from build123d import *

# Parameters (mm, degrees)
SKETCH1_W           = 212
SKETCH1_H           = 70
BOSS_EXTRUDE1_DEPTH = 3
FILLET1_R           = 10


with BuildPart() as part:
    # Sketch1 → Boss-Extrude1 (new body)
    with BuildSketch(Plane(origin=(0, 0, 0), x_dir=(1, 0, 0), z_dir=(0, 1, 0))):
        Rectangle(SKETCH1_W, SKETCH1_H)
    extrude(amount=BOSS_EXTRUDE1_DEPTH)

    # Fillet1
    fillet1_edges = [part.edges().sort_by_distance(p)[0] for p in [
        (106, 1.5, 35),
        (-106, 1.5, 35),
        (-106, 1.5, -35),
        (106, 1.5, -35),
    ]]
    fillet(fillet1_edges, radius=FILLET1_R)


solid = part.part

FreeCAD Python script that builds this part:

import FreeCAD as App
import Part
import Sketcher

V = App.Vector


def edges_at(feature, points):
    """Names of the edges that pass closest to the given points."""
    edges = feature.Shape.Edges
    near = lambda p: min(range(len(edges)), key=lambda i: edges[i].distToShape(Part.Vertex(*p))[0])
    return sorted({f"Edge{near(p) + 1}" for p in points})

doc = App.newDocument("Part")
body = doc.addObject("PartDesign::Body", "Body")

sketch1 = doc.addObject("Sketcher::SketchObject", "Sketch")
body.addObject(sketch1)
sketch1.AttachmentSupport = (doc.XZ_Plane, [""])
sketch1.MapMode = "FlatFace"
sketch1.addGeometry([
    Part.LineSegment(V(-106, -35, 0), V(-106, 35, 0)),
    Part.LineSegment(V(-106, 35, 0), V(106, 35, 0)),
    Part.LineSegment(V(106, 35, 0), V(106, -35, 0)),
    Part.LineSegment(V(106, -35, 0), V(-106, -35, 0)),
], False)
sketch1.addConstraint([
    Sketcher.Constraint("Coincident", 0, 2, 1, 1),
    Sketcher.Constraint("Coincident", 1, 2, 2, 1),
    Sketcher.Constraint("Coincident", 2, 2, 3, 1),
    Sketcher.Constraint("Coincident", 3, 2, 0, 1),
    Sketcher.Constraint("Vertical", 0),
    Sketcher.Constraint("Horizontal", 1),
    Sketcher.Constraint("Vertical", 2),
    Sketcher.Constraint("Horizontal", 3),
    Sketcher.Constraint("Symmetric", 0, 2, 2, 2, -1, 1),
    Sketcher.Constraint("DistanceX", 1, 1, 1, 2, 212.0),
    Sketcher.Constraint("DistanceY", 0, 1, 0, 2, 70.0),
])
pad1 = doc.addObject("PartDesign::Pad", "Pad")
body.addObject(pad1)
pad1.Profile = sketch1
pad1.Length = 3
pad1.Reversed = True
doc.recompute()

fillet = doc.addObject("PartDesign::Fillet", "Fillet")
body.addObject(fillet)
fillet.Base = (pad1, edges_at(pad1, [
    (106, 1.5, 35),
    (-106, 1.5, 35),
    (-106, 1.5, -35),
    (106, 1.5, -35),
]))
fillet.Radius = 10

doc.recompute()
